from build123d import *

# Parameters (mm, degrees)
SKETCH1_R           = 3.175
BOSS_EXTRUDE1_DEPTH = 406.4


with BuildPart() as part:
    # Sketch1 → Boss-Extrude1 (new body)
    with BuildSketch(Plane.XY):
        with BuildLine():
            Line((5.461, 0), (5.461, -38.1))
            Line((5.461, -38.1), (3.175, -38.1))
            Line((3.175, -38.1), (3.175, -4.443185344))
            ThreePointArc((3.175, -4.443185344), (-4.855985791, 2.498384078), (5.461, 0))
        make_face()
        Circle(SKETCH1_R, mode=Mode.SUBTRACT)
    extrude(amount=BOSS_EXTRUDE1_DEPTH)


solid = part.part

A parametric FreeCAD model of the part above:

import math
import FreeCAD as App
import Part
import Sketcher
from FreeCAD import Vector
Q = App.Units.Quantity

doc = App.newDocument("Part")
params = doc.addObject("Spreadsheet::Sheet", "Params")
for row, (alias, value) in enumerate([
    ("sketch1_diameter", "0.25 in"),
    ("sketch1_height", "1.5 in"),
    ("sketch1_radius", "0.215 in"),
    ("sketch1_width", "0.09 in"),
    ("pad1_length", "16 in"),
], start=1):
    params.set(f"A{row}", alias)
    params.set(f"B{row}", "=" + value)
    params.setAlias(f"B{row}", alias)

body = doc.addObject("PartDesign::Body", "Body")

sketch1 = body.newObject("Sketcher::SketchObject", "Sketch")
sketch1.AttachmentSupport = (doc.getObject("XY_Plane"), [""])
sketch1.MapMode = "FlatFace"
sketch1.addGeometry(Part.LineSegment(Vector(5.5, -38.1, 0), Vector(5.5, 0, 0)), False)
sketch1.addGeometry(Part.ArcOfCircle(Part.Circle(Vector(0, 0, 0), Vector(0, 0, 1), 5.5), math.radians(0), math.radians(306)), False)
sketch1.addGeometry(Part.LineSegment(Vector(3.2, -4.4, 0), Vector(3.2, -38.1, 0)), False)
sketch1.addGeometry(Part.LineSegment(Vector(3.2, -38.1, 0), Vector(5.5, -38.1, 0)), False)
sketch1.addGeometry(Part.Circle(Vector(0, 0, 0), Vector(0, 0, 1), 3.2), False)
sketch1.addConstraint(Sketcher.Constraint("Tangent", 0, 2, 1, 1))
sketch1.addConstraint(Sketcher.Constraint("Coincident", 1, 2, 2, 1))
sketch1.addConstraint(Sketcher.Constraint("Coincident", 2, 2, 3, 1))
sketch1.addConstraint(Sketcher.Constraint("Coincident", 3, 2, 0, 1))
sketch1.addConstraint(Sketcher.Constraint("Vertical", 0))
sketch1.addConstraint(Sketcher.Constraint("Vertical", 2))
sketch1.addConstraint(Sketcher.Constraint("Horizontal", 3))
sketch1.addConstraint(Sketcher.Constraint("Coincident", 1, 3, -1, 1))
sketch1.addConstraint(Sketcher.Constraint("Coincident", 4, 3, -1, 1))
sketch1.addConstraint(Sketcher.Constraint("Diameter", 4, Q("0.25 in")))
sketch1.addConstraint(Sketcher.Constraint("DistanceY", 0, 1, 0, 2, Q("1.5 in")))
sketch1.addConstraint(Sketcher.Constraint("Radius", 1, Q("0.215 in")))
sketch1.addConstraint(Sketcher.Constraint("DistanceX", 3, 1, 3, 2, Q("0.09 in")))
sketch1.setExpression("Constraints[9]", "Params.sketch1_diameter")
sketch1.setExpression("Constraints[10]", "Params.sketch1_height")
sketch1.setExpression("Constraints[11]", "Params.sketch1_radius")
sketch1.setExpression("Constraints[12]", "Params.sketch1_width")
pad1 = body.newObject("PartDesign::Pad", "Pad")
pad1.Profile = sketch1
pad1.setExpression("Length", "Params.pad1_length")

doc.recompute()
